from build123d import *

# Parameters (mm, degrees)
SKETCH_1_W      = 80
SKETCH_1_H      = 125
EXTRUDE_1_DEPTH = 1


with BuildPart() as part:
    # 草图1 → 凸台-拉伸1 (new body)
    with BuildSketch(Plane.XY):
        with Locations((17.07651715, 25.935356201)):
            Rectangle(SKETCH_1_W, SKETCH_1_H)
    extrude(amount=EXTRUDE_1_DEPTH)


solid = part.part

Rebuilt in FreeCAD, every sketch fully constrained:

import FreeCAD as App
import Part
import Sketcher

V = App.Vector


def add_polygon(sketch, points):
    """Adds a closed chain of lines whose ends are joined by coincident constraints."""
    first, n = sketch.GeometryCount, len(points)
    for a, b in zip(points, points[1:] + points[:1]):
        sketch.addGeometry(Part.LineSegment(App.Vector(*a, 0), App.Vector(*b, 0)), False)
    for i in range(n):
        sketch.addConstraint(Sketcher.Constraint("Coincident", first + i, 2, first + (i + 1) % n, 1))

doc = App.newDocument("Part")
body = doc.addObject("PartDesign::Body", "Body")

sketch1 = body.newObject("Sketcher::SketchObject", "Sketch")
sketch1.AttachmentSupport = (doc.getObject("XY_Plane"), [""])
sketch1.MapMode = "FlatFace"
add_polygon(sketch1, [(-23, 88), (-23, -37), (57, -37), (57, 88)])
sketch1.addConstraint([
    Sketcher.Constraint("Vertical", 0),
    Sketcher.Constraint("Horizontal", 1),
    Sketcher.Constraint("Vertical", 2),
    Sketcher.Constraint("Horizontal", 3),
    Sketcher.Constraint("DistanceX", 1, 1, 1, 2, 80.0),
    Sketcher.Constraint("DistanceY", 0, 2, 0, 1, 125.0),
    Sketcher.Constraint("DistanceX", 0, 2, -1, 1, 22.923483),
    Sketcher.Constraint("DistanceY", 0, 2, -1, 1, 36.564644),
])
pad1 = body.newObject("PartDesign::Pad", "Pad")
pad1.Profile = sketch1
pad1.Length = 1

doc.recompute()
